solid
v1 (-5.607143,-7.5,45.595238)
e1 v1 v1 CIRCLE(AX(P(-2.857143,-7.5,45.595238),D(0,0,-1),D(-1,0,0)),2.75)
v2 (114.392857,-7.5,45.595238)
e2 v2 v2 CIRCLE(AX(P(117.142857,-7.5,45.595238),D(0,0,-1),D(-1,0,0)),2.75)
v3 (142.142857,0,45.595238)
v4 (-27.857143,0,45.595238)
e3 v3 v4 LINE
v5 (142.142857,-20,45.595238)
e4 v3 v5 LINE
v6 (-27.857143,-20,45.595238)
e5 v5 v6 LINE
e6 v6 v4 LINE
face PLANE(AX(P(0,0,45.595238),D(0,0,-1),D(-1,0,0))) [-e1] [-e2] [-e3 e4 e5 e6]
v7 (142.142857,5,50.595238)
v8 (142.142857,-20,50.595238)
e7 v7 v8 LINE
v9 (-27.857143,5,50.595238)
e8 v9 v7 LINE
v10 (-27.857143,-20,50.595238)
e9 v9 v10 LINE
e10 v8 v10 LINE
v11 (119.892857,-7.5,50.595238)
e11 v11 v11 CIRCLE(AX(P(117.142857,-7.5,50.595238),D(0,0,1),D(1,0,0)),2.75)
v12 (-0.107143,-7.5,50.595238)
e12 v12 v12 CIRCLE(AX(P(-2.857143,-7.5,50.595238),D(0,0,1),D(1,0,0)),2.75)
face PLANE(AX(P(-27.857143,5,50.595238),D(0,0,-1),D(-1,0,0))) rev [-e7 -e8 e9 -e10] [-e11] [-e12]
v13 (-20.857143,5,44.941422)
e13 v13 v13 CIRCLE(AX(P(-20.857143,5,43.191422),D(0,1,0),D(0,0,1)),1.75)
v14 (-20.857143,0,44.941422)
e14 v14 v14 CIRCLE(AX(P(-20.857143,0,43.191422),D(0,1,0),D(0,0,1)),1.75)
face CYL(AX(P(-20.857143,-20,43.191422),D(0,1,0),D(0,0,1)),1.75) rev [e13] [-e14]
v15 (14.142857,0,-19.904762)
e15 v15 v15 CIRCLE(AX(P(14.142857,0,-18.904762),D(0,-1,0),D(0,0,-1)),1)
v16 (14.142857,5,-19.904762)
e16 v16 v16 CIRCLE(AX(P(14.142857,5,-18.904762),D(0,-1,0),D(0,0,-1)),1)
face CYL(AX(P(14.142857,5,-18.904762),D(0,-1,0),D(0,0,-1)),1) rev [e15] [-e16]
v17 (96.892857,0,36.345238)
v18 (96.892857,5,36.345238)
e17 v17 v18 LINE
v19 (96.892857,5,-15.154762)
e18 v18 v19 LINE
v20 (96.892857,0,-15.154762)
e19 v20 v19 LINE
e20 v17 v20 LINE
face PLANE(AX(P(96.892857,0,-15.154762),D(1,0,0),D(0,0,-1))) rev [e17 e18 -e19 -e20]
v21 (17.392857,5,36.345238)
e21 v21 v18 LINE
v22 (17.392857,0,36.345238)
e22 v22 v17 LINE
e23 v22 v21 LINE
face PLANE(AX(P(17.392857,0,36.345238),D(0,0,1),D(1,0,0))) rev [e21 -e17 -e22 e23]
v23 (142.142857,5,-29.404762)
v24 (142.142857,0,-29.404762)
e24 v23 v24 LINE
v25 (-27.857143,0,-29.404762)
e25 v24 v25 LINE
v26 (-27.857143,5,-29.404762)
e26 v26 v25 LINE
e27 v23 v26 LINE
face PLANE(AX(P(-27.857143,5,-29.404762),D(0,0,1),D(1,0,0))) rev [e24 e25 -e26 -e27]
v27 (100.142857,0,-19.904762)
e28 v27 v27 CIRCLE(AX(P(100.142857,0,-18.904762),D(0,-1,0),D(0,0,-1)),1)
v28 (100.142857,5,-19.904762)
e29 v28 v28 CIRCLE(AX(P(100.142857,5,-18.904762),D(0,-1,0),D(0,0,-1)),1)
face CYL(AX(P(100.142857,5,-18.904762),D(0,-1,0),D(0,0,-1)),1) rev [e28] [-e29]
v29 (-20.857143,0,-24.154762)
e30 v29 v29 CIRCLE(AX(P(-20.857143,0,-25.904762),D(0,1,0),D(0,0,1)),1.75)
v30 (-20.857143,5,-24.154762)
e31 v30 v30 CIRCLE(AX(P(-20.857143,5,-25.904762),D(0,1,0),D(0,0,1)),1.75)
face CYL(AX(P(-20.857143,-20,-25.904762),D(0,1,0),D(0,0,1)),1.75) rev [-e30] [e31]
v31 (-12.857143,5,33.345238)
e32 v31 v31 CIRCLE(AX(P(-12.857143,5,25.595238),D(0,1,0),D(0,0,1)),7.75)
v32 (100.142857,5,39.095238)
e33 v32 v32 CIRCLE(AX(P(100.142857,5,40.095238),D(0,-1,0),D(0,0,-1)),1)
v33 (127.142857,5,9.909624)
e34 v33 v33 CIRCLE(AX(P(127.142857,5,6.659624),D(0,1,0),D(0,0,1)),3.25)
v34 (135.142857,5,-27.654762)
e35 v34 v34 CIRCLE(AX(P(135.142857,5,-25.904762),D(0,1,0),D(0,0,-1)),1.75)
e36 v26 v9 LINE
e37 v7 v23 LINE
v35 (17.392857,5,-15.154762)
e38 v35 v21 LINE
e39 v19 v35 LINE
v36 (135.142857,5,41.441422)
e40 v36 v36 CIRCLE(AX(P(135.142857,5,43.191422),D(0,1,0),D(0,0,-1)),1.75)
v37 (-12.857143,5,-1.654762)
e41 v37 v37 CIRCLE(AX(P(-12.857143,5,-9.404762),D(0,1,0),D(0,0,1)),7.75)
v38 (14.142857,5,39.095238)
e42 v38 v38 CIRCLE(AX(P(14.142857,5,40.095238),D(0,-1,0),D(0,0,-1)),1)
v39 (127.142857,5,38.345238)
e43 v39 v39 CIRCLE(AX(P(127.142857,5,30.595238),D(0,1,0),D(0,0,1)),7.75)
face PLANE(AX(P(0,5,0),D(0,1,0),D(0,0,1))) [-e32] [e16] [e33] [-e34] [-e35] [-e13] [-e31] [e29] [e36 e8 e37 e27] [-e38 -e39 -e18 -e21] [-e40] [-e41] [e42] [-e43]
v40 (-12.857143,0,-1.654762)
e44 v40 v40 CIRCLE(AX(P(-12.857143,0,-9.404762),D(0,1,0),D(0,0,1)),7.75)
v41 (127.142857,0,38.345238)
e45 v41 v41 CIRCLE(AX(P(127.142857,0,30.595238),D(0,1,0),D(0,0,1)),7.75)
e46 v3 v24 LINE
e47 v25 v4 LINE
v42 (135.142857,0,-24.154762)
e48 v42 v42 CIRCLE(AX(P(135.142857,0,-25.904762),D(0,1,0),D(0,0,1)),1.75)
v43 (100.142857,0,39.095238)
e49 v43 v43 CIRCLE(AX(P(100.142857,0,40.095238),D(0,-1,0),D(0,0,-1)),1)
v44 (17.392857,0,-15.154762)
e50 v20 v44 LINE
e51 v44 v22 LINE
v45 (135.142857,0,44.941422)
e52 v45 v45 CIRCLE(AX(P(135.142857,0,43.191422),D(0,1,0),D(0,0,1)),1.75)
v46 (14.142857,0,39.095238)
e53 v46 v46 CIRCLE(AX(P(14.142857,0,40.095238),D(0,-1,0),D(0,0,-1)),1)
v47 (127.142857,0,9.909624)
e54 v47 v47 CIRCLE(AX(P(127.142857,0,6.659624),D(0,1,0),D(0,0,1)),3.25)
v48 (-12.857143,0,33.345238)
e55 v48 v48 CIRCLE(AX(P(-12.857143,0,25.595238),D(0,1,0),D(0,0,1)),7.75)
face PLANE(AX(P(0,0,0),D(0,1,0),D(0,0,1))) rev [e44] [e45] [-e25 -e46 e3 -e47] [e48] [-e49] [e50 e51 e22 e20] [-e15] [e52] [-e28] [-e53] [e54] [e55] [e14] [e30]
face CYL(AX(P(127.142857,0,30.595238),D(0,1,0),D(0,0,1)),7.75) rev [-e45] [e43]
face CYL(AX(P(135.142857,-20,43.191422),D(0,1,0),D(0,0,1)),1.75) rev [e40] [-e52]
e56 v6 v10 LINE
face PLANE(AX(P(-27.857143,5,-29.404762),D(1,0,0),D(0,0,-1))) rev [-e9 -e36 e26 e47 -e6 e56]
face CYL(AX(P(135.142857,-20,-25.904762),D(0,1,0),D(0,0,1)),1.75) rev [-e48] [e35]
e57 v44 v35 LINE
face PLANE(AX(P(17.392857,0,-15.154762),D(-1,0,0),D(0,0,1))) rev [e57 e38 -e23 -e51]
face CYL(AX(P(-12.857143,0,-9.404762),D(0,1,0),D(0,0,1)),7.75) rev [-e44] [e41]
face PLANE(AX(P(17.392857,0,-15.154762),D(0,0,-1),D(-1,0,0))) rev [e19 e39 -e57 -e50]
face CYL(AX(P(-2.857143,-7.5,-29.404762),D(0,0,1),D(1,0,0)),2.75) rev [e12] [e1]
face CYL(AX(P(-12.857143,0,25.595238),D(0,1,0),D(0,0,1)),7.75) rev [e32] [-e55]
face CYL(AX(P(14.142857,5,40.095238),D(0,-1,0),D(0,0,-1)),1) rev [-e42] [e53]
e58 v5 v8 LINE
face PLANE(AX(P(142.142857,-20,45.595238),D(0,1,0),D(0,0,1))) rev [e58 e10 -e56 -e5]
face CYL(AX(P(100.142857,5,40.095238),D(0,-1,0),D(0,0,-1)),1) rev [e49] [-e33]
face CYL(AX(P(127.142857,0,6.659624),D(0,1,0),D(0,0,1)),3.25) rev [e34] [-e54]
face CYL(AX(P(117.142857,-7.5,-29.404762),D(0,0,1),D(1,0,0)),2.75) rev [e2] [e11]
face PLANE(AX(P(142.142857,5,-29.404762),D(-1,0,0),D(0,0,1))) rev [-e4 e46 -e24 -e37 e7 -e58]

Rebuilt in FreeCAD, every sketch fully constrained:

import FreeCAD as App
import Part
import Sketcher
from FreeCAD import Vector


def add_polygon(sketch, points):
    """Adds a closed chain of lines whose ends are joined by coincident constraints."""
    first, n = sketch.GeometryCount, len(points)
    for a, b in zip(points, points[1:] + points[:1]):
        sketch.addGeometry(Part.LineSegment(App.Vector(*a, 0), App.Vector(*b, 0)), False)
    for i in range(n):
        sketch.addConstraint(Sketcher.Constraint("Coincident", first + i, 2, first + (i + 1) % n, 1))

doc = App.newDocument("Part")
body = doc.addObject("PartDesign::Body", "Body")

# Sketch on XZ plane
sketch1 = body.newObject("Sketcher::SketchObject", "Sketch")
sketch1.AttachmentSupport = (doc.getObject("XZ_Plane"), [""])
sketch1.MapMode = "FlatFace"
add_polygon(sketch1, [(-28, -29), (-28, 51), (142, 51), (142, -29)])  # lines 0-3
sketch1.addConstraint(Sketcher.Constraint("Vertical", 0))
sketch1.addConstraint(Sketcher.Constraint("Horizontal", 1))
sketch1.addConstraint(Sketcher.Constraint("Vertical", 2))
sketch1.addConstraint(Sketcher.Constraint("Horizontal", 3))
sketch1.addConstraint(Sketcher.Constraint("DistanceX", 1, 1, 1, 2, 170.0))
sketch1.addConstraint(Sketcher.Constraint("DistanceY", 0, 1, 0, 2, 80.0))
sketch1.addConstraint(Sketcher.Constraint("DistanceY", -1, 1, 0, 2, 50.595238))
sketch1.addConstraint(Sketcher.Constraint("DistanceX", 0, 2, -1, 1, 27.857143))
pad1 = body.newObject("PartDesign::Pad", "Pad")
pad1.Profile = sketch1
pad1.Length = 5
pad1.Reversed = True

# Sketch on XZ plane
sketch2 = body.newObject("Sketcher::SketchObject", "Sketch001")
sketch2.AttachmentSupport = (doc.getObject("XZ_Plane"), [""])
sketch2.MapMode = "FlatFace"
sketch2.AttachmentOffset = App.Placement(Vector(0, 0, -5), App.Rotation())
sketch2.addGeometry(Part.Circle(Vector(-12.9, -9.4, 0), Vector(0, 0, 1), 7.8), False)  # 0
sketch2.addGeometry(Part.Circle(Vector(-12.9, 25.6, 0), Vector(0, 0, 1), 7.8), False)  # 1
sketch2.addGeometry(Part.Circle(Vector(127.1, 6.7, 0), Vector(0, 0, 1), 3.2), False)  # 2
sketch2.addGeometry(Part.Circle(Vector(127.1, 30.6, 0), Vector(0, 0, 1), 7.8), False)  # 3
add_polygon(sketch2, [(17.4, -15.2), (17.4, 36.3), (96.9, 36.3), (96.9, -15.2)])  # lines 4-7
sketch2.addConstraint(Sketcher.Constraint("Vertical", 4))
sketch2.addConstraint(Sketcher.Constraint("Horizontal", 5))
sketch2.addConstraint(Sketcher.Constraint("Vertical", 6))
sketch2.addConstraint(Sketcher.Constraint("Horizontal", 7))
sketch2.addConstraint(Sketcher.Constraint("Equal", 0, 1))
sketch2.addConstraint(Sketcher.Constraint("Equal", 1, 3))
sketch2.addConstraint(Sketcher.Constraint("Vertical", 0, 3, 1, 3))
sketch2.addConstraint(Sketcher.Constraint("Vertical", 2, 3, 3, 3))
sketch2.addConstraint(Sketcher.Constraint("Diameter", 0, 15.5))
sketch2.addConstraint(Sketcher.Constraint("Diameter", 2, 6.5))
sketch2.addConstraint(Sketcher.Constraint("DistanceX", 5, 1, 5, 2, 79.5))
sketch2.addConstraint(Sketcher.Constraint("DistanceY", 4, 1, 4, 2, 51.5))
sketch2.addConstraint(Sketcher.Constraint("DistanceY", 0, 3, 1, 3, 35.0))
sketch2.addConstraint(Sketcher.Constraint("DistanceX", 0, 3, 2, 3, 140.0))
sketch2.addConstraint(Sketcher.Constraint("DistanceY", 1, 3, 3, 3, 5.0))
sketch2.addConstraint(Sketcher.Constraint("DistanceX", 1, 3, 4, 2, 30.25))
sketch2.addConstraint(Sketcher.Constraint("DistanceY", 1, 3, 4, 2, 10.75))
sketch2.addConstraint(Sketcher.Constraint("DistanceY", 0, 3, -1, 1, 9.404762))
sketch2.addConstraint(Sketcher.Constraint("DistanceX", 0, 3, -1, 1, 12.857143))
sketch2.addConstraint(Sketcher.Constraint("DistanceY", -1, 1, 2, 3, 6.659624))
pocket1 = body.newObject("PartDesign::Pocket", "Pocket")
pocket1.Profile = sketch2
pocket1.Type = "ThroughAll"
pocket1.Reversed = True

# Sketch on XY plane
sketch3 = body.newObject("Sketcher::SketchObject", "Sketch002")
sketch3.AttachmentSupport = (doc.getObject("XY_Plane"), [""])
sketch3.MapMode = "FlatFace"
sketch3.AttachmentOffset = App.Placement(Vector(0, 0, 50.595238), App.Rotation())
add_polygon(sketch3, [(142, 5), (142, -20), (-28, -20), (-28, 5)])  # lines 0-3
sketch3.addConstraint(Sketcher.Constraint("Vertical", 0))
sketch3.addConstraint(Sketcher.Constraint("Horizontal", 1))
sketch3.addConstraint(Sketcher.Constraint("Vertical", 2))
sketch3.addConstraint(Sketcher.Constraint("Horizontal", 3))
sketch3.addConstraint(Sketcher.Constraint("DistanceX", 1, 2, 1, 1, 170.0))
sketch3.addConstraint(Sketcher.Constraint("DistanceY", 0, 2, 0, 1, 25.0))
sketch3.addConstraint(Sketcher.Constraint("DistanceY", 0, 2, -1, 1, 20.0))
sketch3.addConstraint(Sketcher.Constraint("DistanceX", -1, 1, 0, 2, 142.142857))
pad2 = body.newObject("PartDesign::Pad", "Pad001")
pad2.Profile = sketch3
pad2.Length = 5
pad2.Reversed = True

# Sketch on XY plane
sketch4 = body.newObject("Sketcher::SketchObject", "Sketch003")
sketch4.AttachmentSupport = (doc.getObject("XY_Plane"), [""])
sketch4.MapMode = "FlatFace"
sketch4.AttachmentOffset = App.Placement(Vector(0, 0, 50.595238), App.Rotation())
sketch4.addGeometry(Part.Circle(Vector(-2.9, -7.5, 0), Vector(0, 0, 1), 2.8), False)
sketch4.addGeometry(Part.Circle(Vector(117.1, -7.5, 0), Vector(0, 0, 1), 2.8), False)
sketch4.addConstraint(Sketcher.Constraint("Equal", 0, 1))
sketch4.addConstraint(Sketcher.Constraint("Horizontal", 0, 3, 1, 3))
sketch4.addConstraint(Sketcher.Constraint("Diameter", 0, 5.5))
sketch4.addConstraint(Sketcher.Constraint("DistanceX", 0, 3, 1, 3, 120.0))
sketch4.addConstraint(Sketcher.Constraint("DistanceY", 0, 3, -1, 1, 7.5))
sketch4.addConstraint(Sketcher.Constraint("DistanceX", 0, 3, -1, 1, 2.857143))
pocket2 = body.newObject("PartDesign::Pocket", "Pocket001")
pocket2.Profile = sketch4
pocket2.Type = "ThroughAll"

# Sketch on XZ plane
sketch5 = body.newObject("Sketcher::SketchObject", "Sketch004")
sketch5.AttachmentSupport = (doc.getObject("XZ_Plane"), [""])
sketch5.MapMode = "FlatFace"
sketch5.addGeometry(Part.Circle(Vector(14.1, -18.9, 0), Vector(0, 0, 1), 1), False)
sketch5.addGeometry(Part.Circle(Vector(100.1, -18.9, 0), Vector(0, 0, 1), 1), False)
sketch5.addGeometry(Part.Circle(Vector(100.1, 40.1, 0), Vector(0, 0, 1), 1), False)
sketch5.addGeometry(Part.Circle(Vector(14.1, 40.1, 0), Vector(0, 0, 1), 1), False)
sketch5.addConstraint(Sketcher.Constraint("Equal", 0, 1))
sketch5.addConstraint(Sketcher.Constraint("Equal", 1, 2))
sketch5.addConstraint(Sketcher.Constraint("Equal", 2, 3))
sketch5.addConstraint(Sketcher.Constraint("Horizontal", 0, 3, 1, 3))
sketch5.addConstraint(Sketcher.Constraint("Horizontal", 2, 3, 3, 3))
sketch5.addConstraint(Sketcher.Constraint("Vertical", 1, 3, 2, 3))
sketch5.addConstraint(Sketcher.Constraint("Vertical", 0, 3, 3, 3))
sketch5.addConstraint(Sketcher.Constraint("Diameter", 0, 2.0))
sketch5.addConstraint(Sketcher.Constraint("DistanceX", 0, 3, 1, 3, 86.0))
sketch5.addConstraint(Sketcher.Constraint("DistanceY", 1, 3, 2, 3, 59.0))
sketch5.addConstraint(Sketcher.Constraint("DistanceY", 0, 3, -1, 1, 18.904762))
sketch5.addConstraint(Sketcher.Constraint("DistanceX", -1, 1, 0, 3, 14.142857))
pocket3 = body.newObject("PartDesign::Pocket", "Pocket002")
pocket3.Profile = sketch5
pocket3.Type = "ThroughAll"

# Sketch on XZ plane
sketch6 = body.newObject("Sketcher::SketchObject", "Sketch005")
sketch6.AttachmentSupport = (doc.getObject("XZ_Plane"), [""])
sketch6.MapMode = "FlatFace"
sketch6.AttachmentOffset = App.Placement(Vector(0, 0, -5), App.Rotation())
sketch6.addGeometry(Part.Circle(Vector(-20.9, -25.9, 0), Vector(0, 0, 1), 1.8), False)
sketch6.addGeometry(Part.Circle(Vector(-20.9, 43.2, 0), Vector(0, 0, 1), 1.8), False)
sketch6.addGeometry(Part.Circle(Vector(135.1, 43.2, 0), Vector(0, 0, 1), 1.8), False)
sketch6.addGeometry(Part.Circle(Vector(135.1, -25.9, 0), Vector(0, 0, 1), 1.8), False)
sketch6.addConstraint(Sketcher.Constraint("Equal", 0, 1))
sketch6.addConstraint(Sketcher.Constraint("Equal", 1, 2))
sketch6.addConstraint(Sketcher.Constraint("Equal", 2, 3))
sketch6.addConstraint(Sketcher.Constraint("Horizontal", 1, 3, 2, 3))
sketch6.addConstraint(Sketcher.Constraint("Horizontal", 0, 3, 3, 3))
sketch6.addConstraint(Sketcher.Constraint("Vertical", 0, 3, 1, 3))
sketch6.addConstraint(Sketcher.Constraint("Vertical", 2, 3, 3, 3))
sketch6.addConstraint(Sketcher.Constraint("Diameter", 0, 3.5))
sketch6.addConstraint(Sketcher.Constraint("DistanceX", 1, 3, 2, 3, 156.0))
sketch6.addConstraint(Sketcher.Constraint("DistanceY", 0, 3, -1, 1, 25.904762))
sketch6.addConstraint(Sketcher.Constraint("DistanceY", -1, 1, 1, 3, 43.191422))
sketch6.addConstraint(Sketcher.Constraint("DistanceX", 0, 3, -1, 1, 20.857143))
pocket4 = body.newObject("PartDesign::Pocket", "Pocket003")
pocket4.Profile = sketch6
pocket4.Type = "ThroughAll"
pocket4.Reversed = True

doc.recompute()
